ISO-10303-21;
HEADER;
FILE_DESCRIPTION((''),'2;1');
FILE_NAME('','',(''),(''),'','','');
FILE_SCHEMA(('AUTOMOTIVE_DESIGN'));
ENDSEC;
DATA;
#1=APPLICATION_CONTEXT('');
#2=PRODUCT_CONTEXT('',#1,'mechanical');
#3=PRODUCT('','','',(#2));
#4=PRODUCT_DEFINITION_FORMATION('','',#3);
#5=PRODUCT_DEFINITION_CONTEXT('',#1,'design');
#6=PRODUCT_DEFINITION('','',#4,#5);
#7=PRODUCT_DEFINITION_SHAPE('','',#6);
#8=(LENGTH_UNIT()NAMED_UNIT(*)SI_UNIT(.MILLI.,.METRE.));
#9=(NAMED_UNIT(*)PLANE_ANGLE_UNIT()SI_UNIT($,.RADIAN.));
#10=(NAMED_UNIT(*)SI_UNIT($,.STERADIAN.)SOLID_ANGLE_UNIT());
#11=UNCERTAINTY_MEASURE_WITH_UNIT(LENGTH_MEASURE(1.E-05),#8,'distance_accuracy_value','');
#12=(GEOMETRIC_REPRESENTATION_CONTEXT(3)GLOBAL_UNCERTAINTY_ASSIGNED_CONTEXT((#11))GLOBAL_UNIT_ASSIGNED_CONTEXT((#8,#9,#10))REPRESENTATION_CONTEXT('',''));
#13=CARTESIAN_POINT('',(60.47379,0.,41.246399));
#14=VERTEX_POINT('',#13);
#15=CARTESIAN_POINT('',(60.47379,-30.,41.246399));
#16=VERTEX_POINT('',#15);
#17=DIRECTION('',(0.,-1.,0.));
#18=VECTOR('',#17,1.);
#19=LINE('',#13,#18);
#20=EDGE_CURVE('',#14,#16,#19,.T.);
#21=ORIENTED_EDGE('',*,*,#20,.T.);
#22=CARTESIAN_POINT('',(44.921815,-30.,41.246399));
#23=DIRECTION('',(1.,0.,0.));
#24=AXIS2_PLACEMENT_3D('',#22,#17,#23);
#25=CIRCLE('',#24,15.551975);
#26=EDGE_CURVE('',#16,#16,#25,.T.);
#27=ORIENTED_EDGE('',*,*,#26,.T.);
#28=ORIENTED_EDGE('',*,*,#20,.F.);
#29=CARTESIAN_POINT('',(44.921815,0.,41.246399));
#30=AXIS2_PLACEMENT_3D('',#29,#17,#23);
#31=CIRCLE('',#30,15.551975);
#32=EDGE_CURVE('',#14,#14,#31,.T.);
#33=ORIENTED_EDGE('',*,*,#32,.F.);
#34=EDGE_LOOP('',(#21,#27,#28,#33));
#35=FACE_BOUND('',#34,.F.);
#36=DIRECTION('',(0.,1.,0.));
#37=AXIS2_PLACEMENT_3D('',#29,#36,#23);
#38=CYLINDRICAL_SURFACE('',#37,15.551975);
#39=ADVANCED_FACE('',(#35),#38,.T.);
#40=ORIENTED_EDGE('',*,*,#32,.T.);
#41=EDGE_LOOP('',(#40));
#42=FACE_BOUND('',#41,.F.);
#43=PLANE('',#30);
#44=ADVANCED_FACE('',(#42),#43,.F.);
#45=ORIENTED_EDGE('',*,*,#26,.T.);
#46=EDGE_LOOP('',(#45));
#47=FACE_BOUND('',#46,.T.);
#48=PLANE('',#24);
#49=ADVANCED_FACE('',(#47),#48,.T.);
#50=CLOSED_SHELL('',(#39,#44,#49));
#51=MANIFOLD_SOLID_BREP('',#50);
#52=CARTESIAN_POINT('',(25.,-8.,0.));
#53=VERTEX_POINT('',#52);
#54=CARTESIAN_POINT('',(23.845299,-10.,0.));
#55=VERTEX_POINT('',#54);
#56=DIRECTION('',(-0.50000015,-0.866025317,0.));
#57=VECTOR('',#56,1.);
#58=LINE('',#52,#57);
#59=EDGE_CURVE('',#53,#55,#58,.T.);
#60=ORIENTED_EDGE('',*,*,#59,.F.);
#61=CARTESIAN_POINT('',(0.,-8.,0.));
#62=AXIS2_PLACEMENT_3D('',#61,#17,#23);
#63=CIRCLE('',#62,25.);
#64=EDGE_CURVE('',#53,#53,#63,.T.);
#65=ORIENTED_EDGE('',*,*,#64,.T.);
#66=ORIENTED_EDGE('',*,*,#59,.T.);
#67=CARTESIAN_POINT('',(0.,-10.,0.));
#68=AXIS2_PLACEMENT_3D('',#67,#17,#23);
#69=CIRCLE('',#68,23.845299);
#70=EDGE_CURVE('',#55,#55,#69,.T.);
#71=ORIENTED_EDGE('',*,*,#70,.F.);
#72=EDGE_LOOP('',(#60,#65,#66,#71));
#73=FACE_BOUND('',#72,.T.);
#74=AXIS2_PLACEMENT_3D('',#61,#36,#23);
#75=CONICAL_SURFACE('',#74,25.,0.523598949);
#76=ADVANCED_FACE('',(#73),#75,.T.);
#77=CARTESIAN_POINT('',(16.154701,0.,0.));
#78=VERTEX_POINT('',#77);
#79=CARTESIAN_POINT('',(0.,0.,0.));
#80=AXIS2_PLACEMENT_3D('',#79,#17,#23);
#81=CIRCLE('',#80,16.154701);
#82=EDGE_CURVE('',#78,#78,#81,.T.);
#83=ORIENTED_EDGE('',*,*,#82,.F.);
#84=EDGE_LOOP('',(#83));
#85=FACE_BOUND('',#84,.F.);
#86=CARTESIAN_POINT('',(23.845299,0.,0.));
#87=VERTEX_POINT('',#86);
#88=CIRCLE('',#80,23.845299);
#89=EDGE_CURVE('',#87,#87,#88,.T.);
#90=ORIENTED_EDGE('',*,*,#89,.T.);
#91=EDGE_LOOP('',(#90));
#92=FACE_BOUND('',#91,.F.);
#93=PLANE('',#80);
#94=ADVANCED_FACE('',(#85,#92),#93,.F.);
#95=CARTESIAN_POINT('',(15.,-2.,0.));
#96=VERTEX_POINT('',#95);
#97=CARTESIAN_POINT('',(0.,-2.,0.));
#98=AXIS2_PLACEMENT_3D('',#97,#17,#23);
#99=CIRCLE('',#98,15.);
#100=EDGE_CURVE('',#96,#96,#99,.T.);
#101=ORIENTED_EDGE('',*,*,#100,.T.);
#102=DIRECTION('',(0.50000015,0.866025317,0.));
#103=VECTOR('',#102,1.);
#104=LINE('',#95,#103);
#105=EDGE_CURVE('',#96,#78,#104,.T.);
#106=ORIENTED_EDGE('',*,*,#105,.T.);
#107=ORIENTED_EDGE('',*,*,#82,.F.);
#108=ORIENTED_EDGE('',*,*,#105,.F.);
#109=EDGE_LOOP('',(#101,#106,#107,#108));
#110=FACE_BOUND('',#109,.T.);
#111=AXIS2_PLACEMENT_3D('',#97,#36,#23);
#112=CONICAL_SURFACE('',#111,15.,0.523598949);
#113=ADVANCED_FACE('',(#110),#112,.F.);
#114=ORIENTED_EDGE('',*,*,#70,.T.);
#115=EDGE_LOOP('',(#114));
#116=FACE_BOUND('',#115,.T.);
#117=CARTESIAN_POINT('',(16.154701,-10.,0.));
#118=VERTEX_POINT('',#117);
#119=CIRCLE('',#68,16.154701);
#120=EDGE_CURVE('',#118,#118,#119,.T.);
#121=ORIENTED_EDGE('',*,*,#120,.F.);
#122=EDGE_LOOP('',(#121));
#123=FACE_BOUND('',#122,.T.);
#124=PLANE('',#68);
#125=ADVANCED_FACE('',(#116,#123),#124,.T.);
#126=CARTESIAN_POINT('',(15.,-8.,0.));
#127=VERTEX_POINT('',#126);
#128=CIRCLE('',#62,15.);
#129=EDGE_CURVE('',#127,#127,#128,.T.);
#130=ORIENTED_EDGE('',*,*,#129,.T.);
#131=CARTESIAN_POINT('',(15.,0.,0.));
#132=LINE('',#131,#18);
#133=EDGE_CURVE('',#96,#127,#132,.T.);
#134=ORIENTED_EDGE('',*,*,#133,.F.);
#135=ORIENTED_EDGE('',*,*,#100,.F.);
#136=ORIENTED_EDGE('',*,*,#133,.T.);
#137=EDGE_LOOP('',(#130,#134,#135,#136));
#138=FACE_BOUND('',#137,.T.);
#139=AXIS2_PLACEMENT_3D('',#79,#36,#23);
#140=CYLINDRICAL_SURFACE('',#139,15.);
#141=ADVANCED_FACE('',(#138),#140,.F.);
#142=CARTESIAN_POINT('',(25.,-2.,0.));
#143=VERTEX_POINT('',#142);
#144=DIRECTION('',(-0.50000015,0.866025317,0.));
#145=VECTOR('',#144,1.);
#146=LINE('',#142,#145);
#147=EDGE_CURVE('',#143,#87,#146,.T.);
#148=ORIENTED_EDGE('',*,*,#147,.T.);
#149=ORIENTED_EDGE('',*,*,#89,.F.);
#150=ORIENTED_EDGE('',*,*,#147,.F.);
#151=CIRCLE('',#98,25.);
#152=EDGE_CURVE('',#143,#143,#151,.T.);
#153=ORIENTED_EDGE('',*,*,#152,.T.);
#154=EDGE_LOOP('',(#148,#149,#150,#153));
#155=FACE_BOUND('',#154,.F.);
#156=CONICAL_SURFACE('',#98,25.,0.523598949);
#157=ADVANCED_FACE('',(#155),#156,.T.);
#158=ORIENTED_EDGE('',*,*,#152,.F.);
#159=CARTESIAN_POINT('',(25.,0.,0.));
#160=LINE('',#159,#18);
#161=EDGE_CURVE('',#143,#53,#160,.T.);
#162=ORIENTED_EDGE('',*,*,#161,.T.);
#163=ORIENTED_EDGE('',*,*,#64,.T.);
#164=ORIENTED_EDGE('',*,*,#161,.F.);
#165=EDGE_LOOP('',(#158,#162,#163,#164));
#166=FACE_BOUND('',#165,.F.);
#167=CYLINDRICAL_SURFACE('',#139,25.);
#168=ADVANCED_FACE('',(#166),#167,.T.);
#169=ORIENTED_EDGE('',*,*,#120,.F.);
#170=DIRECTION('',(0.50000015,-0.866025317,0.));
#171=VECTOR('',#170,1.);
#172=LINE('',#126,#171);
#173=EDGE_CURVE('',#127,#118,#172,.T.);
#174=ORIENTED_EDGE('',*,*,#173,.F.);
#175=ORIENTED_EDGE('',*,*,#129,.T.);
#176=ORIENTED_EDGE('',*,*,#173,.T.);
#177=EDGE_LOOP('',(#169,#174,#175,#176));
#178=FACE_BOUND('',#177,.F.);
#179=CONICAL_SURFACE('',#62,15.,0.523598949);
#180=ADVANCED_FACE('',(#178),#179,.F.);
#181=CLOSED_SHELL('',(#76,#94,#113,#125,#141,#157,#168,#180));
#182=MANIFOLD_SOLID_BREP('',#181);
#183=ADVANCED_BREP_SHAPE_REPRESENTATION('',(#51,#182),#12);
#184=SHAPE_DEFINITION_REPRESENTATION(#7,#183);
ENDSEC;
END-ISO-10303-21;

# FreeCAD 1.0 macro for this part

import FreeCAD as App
import Part
import Sketcher


def edges_at(feature, points):
    """Names of the edges that pass closest to the given points."""
    edges = feature.Shape.Edges
    near = lambda p: min(range(len(edges)), key=lambda i: edges[i].distToShape(Part.Vertex(*p))[0])
    return sorted({f"Edge{near(p) + 1}" for p in points})

doc = App.newDocument("Part")
params = doc.addObject("Spreadsheet::Sheet", "Params")
for row, (alias, value) in enumerate([
    ("sketch1_diameter", "50 mm"),
    ("sketch1_diameter2", "30 mm"),
    ("pad1_length", "10 mm"),
    ("chamfer_size", "2 mm"),
    ("chamfer_size2", "1.154701 mm"),
    ("pad2_length", "30 mm"),
], start=1):
    params.set(f"A{row}", alias)
    params.set(f"B{row}", "=" + value)
    params.setAlias(f"B{row}", alias)

body = doc.addObject("PartDesign::Body", "Body")

# Sketch on XZ plane
sketch1 = body.newObject("Sketcher::SketchObject", "Sketch")
sketch1.AttachmentSupport = (doc.getObject("XZ_Plane"), [""])
sketch1.MapMode = "FlatFace"
sketch1.addGeometry([
    Part.Circle(App.Vector(0, 0, 0), App.Vector(0, 0, 1), 25),
    Part.Circle(App.Vector(0, 0, 0), App.Vector(0, 0, 1), 15),
], False)
sketch1.addConstraint([
    Sketcher.Constraint("Coincident", 0, 3, -1, 1),
    Sketcher.Constraint("Coincident", 1, 3, -1, 1),
    Sketcher.Constraint("Diameter", 0, 50.0),
    Sketcher.Constraint("Diameter", 1, 30.0),
])
sketch1.setExpression("Constraints[2]", "Params.sketch1_diameter")
sketch1.setExpression("Constraints[3]", "Params.sketch1_diameter2")
pad1 = body.newObject("PartDesign::Pad", "Pad")
pad1.Profile = sketch1
pad1.setExpression("Length", "Params.pad1_length")
doc.recompute()

chamfer = body.newObject("PartDesign::Chamfer", "Chamfer")
chamfer.Base = (pad1, edges_at(pad1, [
    (-25, 0, 0),
    (-15, 0, 0),
    (-25, -10, 0),
    (-15, -10, 0),
]))
chamfer.ChamferType = "Two distances"
chamfer.setExpression("Size", "Params.chamfer_size")
chamfer.setExpression("Size2", "Params.chamfer_size2")
body2 = doc.addObject("PartDesign::Body", "Body001")

# Sketch on XZ plane
sketch2 = body2.newObject("Sketcher::SketchObject", "Sketch001")
sketch2.AttachmentSupport = (doc.getObject("XZ_Plane001"), [""])
sketch2.MapMode = "FlatFace"
sketch2.addGeometry(Part.Circle(App.Vector(45, 41, 0), App.Vector(0, 0, 1), 16), False)
sketch2.addConstraint([
    Sketcher.Constraint("Diameter", 0, 31.10395),
    Sketcher.Constraint("DistanceY", -1, 1, 0, 3, 41.246399),
    Sketcher.Constraint("DistanceX", -1, 1, 0, 3, 44.921815),
])
pad2 = body2.newObject("PartDesign::Pad", "Pad001")
pad2.Profile = sketch2
pad2.setExpression("Length", "Params.pad2_length")

doc.recompute()
